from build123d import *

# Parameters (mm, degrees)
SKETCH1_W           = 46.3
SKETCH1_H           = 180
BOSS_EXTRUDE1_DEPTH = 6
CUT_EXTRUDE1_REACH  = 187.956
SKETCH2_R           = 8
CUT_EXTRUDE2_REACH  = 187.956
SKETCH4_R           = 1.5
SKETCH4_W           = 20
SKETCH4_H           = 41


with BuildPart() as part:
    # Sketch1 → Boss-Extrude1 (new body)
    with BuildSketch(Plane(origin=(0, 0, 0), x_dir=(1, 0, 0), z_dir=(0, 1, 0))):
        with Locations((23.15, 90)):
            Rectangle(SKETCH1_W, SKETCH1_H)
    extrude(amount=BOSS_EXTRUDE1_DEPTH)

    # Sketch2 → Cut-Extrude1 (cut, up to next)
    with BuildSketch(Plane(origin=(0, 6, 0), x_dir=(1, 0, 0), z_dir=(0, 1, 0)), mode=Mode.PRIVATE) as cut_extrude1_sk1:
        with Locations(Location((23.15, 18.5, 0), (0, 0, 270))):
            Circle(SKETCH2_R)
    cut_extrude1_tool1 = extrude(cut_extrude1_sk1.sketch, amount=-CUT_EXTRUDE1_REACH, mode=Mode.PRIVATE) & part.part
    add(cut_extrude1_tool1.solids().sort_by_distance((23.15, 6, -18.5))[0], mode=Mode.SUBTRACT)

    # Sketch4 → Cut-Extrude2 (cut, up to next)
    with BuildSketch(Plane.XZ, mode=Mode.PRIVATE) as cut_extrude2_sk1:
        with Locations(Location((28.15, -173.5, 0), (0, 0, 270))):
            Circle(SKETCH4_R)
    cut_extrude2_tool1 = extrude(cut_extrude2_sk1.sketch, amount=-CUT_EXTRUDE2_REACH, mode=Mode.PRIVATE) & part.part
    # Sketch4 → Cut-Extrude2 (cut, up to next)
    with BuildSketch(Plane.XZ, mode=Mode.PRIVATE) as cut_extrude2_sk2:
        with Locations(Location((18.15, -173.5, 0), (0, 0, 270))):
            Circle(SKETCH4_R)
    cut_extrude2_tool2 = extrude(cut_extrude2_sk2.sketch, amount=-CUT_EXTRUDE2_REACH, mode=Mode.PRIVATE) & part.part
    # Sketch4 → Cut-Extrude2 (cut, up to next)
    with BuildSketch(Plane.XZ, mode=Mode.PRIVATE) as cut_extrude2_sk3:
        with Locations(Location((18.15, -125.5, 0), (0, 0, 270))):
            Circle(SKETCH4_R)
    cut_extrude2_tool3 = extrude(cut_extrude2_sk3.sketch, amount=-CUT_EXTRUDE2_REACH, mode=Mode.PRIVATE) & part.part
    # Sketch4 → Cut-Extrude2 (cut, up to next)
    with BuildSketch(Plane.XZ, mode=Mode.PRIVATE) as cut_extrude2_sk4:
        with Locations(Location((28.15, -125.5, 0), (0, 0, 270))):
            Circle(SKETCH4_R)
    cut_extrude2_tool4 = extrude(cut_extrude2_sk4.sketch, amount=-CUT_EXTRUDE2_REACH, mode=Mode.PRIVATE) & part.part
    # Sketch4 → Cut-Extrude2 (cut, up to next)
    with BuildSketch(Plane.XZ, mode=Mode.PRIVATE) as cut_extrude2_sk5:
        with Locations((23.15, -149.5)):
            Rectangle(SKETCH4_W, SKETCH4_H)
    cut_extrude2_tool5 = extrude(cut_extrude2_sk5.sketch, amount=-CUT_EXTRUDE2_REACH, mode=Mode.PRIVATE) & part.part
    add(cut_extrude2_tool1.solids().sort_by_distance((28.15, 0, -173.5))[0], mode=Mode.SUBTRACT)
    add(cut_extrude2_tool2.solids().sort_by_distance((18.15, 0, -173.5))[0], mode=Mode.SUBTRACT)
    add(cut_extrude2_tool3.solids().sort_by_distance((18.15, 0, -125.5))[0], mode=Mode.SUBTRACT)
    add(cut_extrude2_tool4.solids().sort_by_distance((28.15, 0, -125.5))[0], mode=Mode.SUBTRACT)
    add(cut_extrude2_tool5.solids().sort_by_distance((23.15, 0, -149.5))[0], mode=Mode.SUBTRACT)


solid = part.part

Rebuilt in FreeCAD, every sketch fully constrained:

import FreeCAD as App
import Part
import Sketcher

V = App.Vector
Q = App.Units.Quantity


def add_polygon(sketch, points):
    """Adds a closed chain of lines whose ends are joined by coincident constraints."""
    first, n = sketch.GeometryCount, len(points)
    for a, b in zip(points, points[1:] + points[:1]):
        sketch.addGeometry(Part.LineSegment(App.Vector(*a, 0), App.Vector(*b, 0)), False)
    for i in range(n):
        sketch.addConstraint(Sketcher.Constraint("Coincident", first + i, 2, first + (i + 1) % n, 1))

doc = App.newDocument("Part")
body = doc.addObject("PartDesign::Body", "Body")

# Sketch on XZ plane
sketch1 = doc.addObject("Sketcher::SketchObject", "Sketch")
body.addObject(sketch1)
sketch1.AttachmentSupport = (doc.XZ_Plane, [""])
sketch1.MapMode = "FlatFace"
add_polygon(sketch1, [(0, -180), (0, 0), (46, 0), (46, -180)])  # lines 0-3
sketch1.addConstraint(Sketcher.Constraint("Vertical", 0))
sketch1.addConstraint(Sketcher.Constraint("Horizontal", 1))
sketch1.addConstraint(Sketcher.Constraint("Vertical", 2))
sketch1.addConstraint(Sketcher.Constraint("Horizontal", 3))
sketch1.addConstraint(Sketcher.Constraint("Coincident", 0, 2, -1, 1))
sketch1.addConstraint(Sketcher.Constraint("DistanceY", 0, 1, 0, 2, Q("180 mm")))
sketch1.addConstraint(Sketcher.Constraint("DistanceX", 1, 1, 1, 2, Q("46.3 mm")))
pad1 = doc.addObject("PartDesign::Pad", "Pad")
body.addObject(pad1)
pad1.Profile = sketch1
pad1.Length = 6
pad1.Reversed = True

# Sketch on XZ plane
sketch2 = doc.addObject("Sketcher::SketchObject", "Sketch001")
body.addObject(sketch2)
sketch2.AttachmentSupport = (doc.XZ_Plane, [""])
sketch2.MapMode = "FlatFace"
sketch2.AttachmentOffset = App.Placement(V(0, 0, -6), App.Rotation())
sketch2.addGeometry(Part.Circle(V(23, -18, 0), V(0, 0, 1), 8), False)
sketch2.addConstraint(Sketcher.Constraint("Diameter", 0, Q("16 mm")))
sketch2.addConstraint(Sketcher.Constraint("DistanceY", 0, 3, -1, 1, Q("18.5 mm")))
sketch2.addConstraint(Sketcher.Constraint("DistanceX", -1, 1, 0, 3, Q("23.15 mm")))
pocket1 = doc.addObject("PartDesign::Pocket", "Pocket")
body.addObject(pocket1)
pocket1.Profile = sketch2
pocket1.Type = "UpToFirst"
pocket1.Reversed = True

# Sketch on XZ plane
sketch3 = doc.addObject("Sketcher::SketchObject", "Sketch002")
body.addObject(sketch3)
sketch3.AttachmentSupport = (doc.XZ_Plane, [""])
sketch3.MapMode = "FlatFace"
sketch3.addGeometry(Part.Circle(V(28.1, -173.5, 0), V(0, 0, 1), 1.5), False)
sketch3.addConstraint(Sketcher.Constraint("Diameter", 0, Q("3 mm")))
sketch3.addConstraint(Sketcher.Constraint("DistanceY", 0, 3, -1, 1, Q("173.5 mm")))
sketch3.addConstraint(Sketcher.Constraint("DistanceX", -1, 1, 0, 3, Q("28.15 mm")))
pocket2 = doc.addObject("PartDesign::Pocket", "Pocket001")
body.addObject(pocket2)
pocket2.Profile = sketch3
pocket2.Type = "UpToFirst"

# Sketch on XZ plane
sketch4 = doc.addObject("Sketcher::SketchObject", "Sketch003")
body.addObject(sketch4)
sketch4.AttachmentSupport = (doc.XZ_Plane, [""])
sketch4.MapMode = "FlatFace"
sketch4.addGeometry(Part.Circle(V(18.1, -173.5, 0), V(0, 0, 1), 1.5), False)
sketch4.addConstraint(Sketcher.Constraint("Diameter", 0, Q("3 mm")))
sketch4.addConstraint(Sketcher.Constraint("DistanceY", 0, 3, -1, 1, Q("173.5 mm")))
sketch4.addConstraint(Sketcher.Constraint("DistanceX", -1, 1, 0, 3, Q("18.15 mm")))
pocket3 = doc.addObject("PartDesign::Pocket", "Pocket002")
body.addObject(pocket3)
pocket3.Profile = sketch4
pocket3.Type = "UpToFirst"

# Sketch on XZ plane
sketch5 = doc.addObject("Sketcher::SketchObject", "Sketch004")
body.addObject(sketch5)
sketch5.AttachmentSupport = (doc.XZ_Plane, [""])
sketch5.MapMode = "FlatFace"
sketch5.addGeometry(Part.Circle(V(18.1, -125.5, 0), V(0, 0, 1), 1.5), False)
sketch5.addConstraint(Sketcher.Constraint("Diameter", 0, Q("3 mm")))
sketch5.addConstraint(Sketcher.Constraint("DistanceY", 0, 3, -1, 1, Q("125.5 mm")))
sketch5.addConstraint(Sketcher.Constraint("DistanceX", -1, 1, 0, 3, Q("18.15 mm")))
pocket4 = doc.addObject("PartDesign::Pocket", "Pocket003")
body.addObject(pocket4)
pocket4.Profile = sketch5
pocket4.Type = "UpToFirst"

# Sketch on XZ plane
sketch6 = doc.addObject("Sketcher::SketchObject", "Sketch005")
body.addObject(sketch6)
sketch6.AttachmentSupport = (doc.XZ_Plane, [""])
sketch6.MapMode = "FlatFace"
sketch6.addGeometry(Part.Circle(V(28.1, -125.5, 0), V(0, 0, 1), 1.5), False)
sketch6.addConstraint(Sketcher.Constraint("Diameter", 0, Q("3 mm")))
sketch6.addConstraint(Sketcher.Constraint("DistanceY", 0, 3, -1, 1, Q("125.5 mm")))
sketch6.addConstraint(Sketcher.Constraint("DistanceX", -1, 1, 0, 3, Q("28.15 mm")))
pocket5 = doc.addObject("PartDesign::Pocket", "Pocket004")
body.addObject(pocket5)
pocket5.Profile = sketch6
pocket5.Type = "UpToFirst"

# Sketch on XZ plane
sketch7 = doc.addObject("Sketcher::SketchObject", "Sketch006")
body.addObject(sketch7)
sketch7.AttachmentSupport = (doc.XZ_Plane, [""])
sketch7.MapMode = "FlatFace"
add_polygon(sketch7, [(13, -129), (13, -170), (33, -170), (33, -129)])  # lines 0-3
sketch7.addConstraint(Sketcher.Constraint("Vertical", 0))
sketch7.addConstraint(Sketcher.Constraint("Horizontal", 1))
sketch7.addConstraint(Sketcher.Constraint("Vertical", 2))
sketch7.addConstraint(Sketcher.Constraint("Horizontal", 3))
sketch7.addConstraint(Sketcher.Constraint("DistanceX", 1, 1, 1, 2, Q("20 mm")))
sketch7.addConstraint(Sketcher.Constraint("DistanceY", 0, 2, 0, 1, Q("41 mm")))
sketch7.addConstraint(Sketcher.Constraint("DistanceY", 0, 2, -1, 1, Q("170 mm")))
sketch7.addConstraint(Sketcher.Constraint("DistanceX", -1, 1, 0, 2, Q("13.15 mm")))
pocket6 = doc.addObject("PartDesign::Pocket", "Pocket005")
body.addObject(pocket6)
pocket6.Profile = sketch7
pocket6.Type = "UpToFirst"

doc.recompute()
